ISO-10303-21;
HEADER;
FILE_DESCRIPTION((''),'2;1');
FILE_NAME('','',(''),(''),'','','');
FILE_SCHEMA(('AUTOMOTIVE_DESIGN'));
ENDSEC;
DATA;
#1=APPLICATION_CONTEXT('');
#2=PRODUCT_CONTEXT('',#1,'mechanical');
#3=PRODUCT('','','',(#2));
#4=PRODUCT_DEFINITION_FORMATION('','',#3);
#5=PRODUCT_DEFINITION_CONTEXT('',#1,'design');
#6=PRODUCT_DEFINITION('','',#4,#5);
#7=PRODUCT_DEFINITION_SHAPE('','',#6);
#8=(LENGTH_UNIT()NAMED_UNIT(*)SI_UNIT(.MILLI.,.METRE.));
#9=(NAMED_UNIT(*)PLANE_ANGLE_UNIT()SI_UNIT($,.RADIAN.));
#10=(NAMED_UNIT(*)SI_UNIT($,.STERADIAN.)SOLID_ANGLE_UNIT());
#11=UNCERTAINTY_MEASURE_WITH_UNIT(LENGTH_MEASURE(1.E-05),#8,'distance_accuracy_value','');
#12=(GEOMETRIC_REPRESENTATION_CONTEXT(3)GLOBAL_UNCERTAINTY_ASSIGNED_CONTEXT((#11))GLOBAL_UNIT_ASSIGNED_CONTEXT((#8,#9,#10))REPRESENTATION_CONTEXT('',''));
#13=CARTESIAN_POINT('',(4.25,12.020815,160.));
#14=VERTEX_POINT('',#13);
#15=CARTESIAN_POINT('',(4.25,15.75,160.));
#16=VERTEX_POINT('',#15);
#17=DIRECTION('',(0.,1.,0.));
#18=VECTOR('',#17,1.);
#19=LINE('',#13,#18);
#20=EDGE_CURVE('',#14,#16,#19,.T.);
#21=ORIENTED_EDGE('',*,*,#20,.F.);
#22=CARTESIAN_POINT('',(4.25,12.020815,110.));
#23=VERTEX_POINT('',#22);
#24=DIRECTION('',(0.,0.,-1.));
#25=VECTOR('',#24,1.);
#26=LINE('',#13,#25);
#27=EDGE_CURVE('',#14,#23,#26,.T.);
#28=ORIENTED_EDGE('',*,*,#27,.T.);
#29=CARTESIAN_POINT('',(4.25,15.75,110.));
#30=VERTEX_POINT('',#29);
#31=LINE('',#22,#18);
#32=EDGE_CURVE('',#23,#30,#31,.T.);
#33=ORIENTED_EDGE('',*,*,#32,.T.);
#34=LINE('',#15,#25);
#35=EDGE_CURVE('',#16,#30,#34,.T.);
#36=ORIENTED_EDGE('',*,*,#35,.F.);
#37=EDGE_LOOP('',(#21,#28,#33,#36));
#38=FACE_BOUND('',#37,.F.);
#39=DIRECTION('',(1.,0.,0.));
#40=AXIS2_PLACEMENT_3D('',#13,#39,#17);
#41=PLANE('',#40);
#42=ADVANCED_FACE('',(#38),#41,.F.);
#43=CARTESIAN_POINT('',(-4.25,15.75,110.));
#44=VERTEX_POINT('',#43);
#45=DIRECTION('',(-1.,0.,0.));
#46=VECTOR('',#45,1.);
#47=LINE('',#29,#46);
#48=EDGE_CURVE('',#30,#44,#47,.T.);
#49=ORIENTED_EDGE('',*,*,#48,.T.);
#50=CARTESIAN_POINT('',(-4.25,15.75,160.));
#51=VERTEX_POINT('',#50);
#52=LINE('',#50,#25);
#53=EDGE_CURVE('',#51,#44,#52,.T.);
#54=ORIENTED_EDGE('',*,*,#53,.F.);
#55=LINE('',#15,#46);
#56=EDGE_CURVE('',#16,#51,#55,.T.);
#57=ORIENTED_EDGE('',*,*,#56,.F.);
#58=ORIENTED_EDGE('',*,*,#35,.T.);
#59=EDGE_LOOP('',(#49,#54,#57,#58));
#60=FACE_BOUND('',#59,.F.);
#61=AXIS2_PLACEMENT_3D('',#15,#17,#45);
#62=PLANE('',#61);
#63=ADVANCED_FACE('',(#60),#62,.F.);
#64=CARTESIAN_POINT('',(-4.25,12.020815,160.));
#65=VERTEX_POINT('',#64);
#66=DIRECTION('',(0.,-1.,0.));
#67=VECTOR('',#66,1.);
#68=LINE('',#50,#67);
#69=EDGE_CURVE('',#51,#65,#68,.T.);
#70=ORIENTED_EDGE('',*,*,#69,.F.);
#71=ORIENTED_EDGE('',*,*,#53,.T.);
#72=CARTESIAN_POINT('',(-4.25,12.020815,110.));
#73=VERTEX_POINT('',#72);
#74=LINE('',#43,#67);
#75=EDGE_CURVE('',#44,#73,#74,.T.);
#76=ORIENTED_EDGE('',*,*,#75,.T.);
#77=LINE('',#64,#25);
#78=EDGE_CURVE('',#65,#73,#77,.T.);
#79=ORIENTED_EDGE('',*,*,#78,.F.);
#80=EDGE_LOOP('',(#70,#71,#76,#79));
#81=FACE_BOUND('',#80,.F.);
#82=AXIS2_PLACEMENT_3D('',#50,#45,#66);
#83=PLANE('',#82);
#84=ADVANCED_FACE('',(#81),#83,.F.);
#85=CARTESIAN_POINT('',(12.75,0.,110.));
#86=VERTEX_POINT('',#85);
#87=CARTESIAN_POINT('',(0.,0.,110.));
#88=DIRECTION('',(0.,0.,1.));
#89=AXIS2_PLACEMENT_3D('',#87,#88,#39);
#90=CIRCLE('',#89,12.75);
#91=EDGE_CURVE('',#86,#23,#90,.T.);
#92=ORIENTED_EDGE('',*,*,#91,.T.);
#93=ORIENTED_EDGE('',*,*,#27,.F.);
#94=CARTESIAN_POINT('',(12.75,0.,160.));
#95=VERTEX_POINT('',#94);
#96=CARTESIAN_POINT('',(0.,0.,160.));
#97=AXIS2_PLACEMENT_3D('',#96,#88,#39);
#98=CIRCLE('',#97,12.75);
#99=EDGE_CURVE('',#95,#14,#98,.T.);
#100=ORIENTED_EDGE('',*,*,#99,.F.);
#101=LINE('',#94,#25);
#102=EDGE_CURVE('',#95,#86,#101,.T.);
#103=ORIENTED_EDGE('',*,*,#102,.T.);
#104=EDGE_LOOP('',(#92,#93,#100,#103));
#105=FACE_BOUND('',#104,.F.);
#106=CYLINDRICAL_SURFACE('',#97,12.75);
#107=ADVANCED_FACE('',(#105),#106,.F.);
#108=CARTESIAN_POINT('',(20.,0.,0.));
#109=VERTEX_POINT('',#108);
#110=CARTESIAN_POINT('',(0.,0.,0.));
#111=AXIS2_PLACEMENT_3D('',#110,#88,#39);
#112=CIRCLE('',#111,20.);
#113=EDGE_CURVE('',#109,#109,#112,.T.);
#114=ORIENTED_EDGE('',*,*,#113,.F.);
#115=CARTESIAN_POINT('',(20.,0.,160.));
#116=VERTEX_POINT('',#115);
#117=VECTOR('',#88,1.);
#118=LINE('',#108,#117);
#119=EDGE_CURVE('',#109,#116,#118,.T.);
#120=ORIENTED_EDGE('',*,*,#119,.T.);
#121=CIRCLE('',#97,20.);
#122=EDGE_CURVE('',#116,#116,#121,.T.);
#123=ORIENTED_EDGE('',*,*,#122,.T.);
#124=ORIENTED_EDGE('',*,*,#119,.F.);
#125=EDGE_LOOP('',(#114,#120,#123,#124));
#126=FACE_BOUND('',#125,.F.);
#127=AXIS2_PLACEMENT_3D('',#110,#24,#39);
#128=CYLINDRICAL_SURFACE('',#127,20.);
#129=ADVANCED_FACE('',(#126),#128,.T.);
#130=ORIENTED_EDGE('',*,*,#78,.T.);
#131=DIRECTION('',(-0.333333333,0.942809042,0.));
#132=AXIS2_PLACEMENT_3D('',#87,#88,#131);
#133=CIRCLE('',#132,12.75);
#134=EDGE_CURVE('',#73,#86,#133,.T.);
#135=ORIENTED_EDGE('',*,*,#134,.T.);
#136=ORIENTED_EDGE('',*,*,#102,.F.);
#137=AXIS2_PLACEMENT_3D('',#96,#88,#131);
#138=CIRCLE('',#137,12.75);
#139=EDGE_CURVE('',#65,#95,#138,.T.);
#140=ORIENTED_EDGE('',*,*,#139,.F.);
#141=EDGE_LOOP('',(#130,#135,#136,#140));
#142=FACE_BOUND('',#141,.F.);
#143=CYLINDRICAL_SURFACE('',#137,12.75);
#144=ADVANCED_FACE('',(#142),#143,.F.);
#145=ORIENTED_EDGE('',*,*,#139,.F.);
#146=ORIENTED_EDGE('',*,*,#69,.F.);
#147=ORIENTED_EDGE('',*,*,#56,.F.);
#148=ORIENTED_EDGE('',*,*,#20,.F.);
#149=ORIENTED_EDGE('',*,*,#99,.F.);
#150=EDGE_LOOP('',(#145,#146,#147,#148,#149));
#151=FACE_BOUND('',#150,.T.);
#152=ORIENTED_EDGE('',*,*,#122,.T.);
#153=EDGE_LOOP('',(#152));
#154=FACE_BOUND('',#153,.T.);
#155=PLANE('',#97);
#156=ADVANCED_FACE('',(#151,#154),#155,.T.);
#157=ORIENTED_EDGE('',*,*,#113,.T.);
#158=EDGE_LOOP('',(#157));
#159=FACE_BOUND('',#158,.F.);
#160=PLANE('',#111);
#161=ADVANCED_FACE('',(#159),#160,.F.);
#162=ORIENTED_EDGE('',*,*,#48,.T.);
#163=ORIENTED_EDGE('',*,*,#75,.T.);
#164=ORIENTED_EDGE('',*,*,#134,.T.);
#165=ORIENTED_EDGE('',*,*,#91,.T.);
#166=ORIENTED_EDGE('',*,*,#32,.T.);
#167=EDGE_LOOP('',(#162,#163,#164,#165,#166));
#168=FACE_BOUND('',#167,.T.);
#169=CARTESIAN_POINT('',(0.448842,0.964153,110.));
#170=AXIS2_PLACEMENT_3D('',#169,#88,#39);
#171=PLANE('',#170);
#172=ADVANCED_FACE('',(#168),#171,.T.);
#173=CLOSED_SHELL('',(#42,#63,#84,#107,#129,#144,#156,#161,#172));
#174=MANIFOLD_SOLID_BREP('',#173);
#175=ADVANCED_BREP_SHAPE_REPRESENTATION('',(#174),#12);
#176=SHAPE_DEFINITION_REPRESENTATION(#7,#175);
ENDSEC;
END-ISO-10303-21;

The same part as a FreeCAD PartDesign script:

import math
import FreeCAD as App
import Part
import Sketcher

V = App.Vector
Q = App.Units.Quantity

doc = App.newDocument("Part")
body = doc.addObject("PartDesign::Body", "Body")

# Sketch on XY plane
sketch1 = doc.addObject("Sketcher::SketchObject", "Sketch")
body.addObject(sketch1)
sketch1.AttachmentSupport = (doc.XY_Plane, [""])
sketch1.MapMode = "FlatFace"
sketch1.addGeometry(Part.Circle(V(0, 0, 0), V(0, 0, 1), 20), False)
sketch1.addConstraint([
    Sketcher.Constraint("Coincident", 0, 3, -1, 1),
    Sketcher.Constraint("Diameter", 0, Q("40 mm")),
])
pad1 = doc.addObject("PartDesign::Pad", "Pad")
body.addObject(pad1)
pad1.Profile = sketch1
pad1.Length = 160

# Sketch on XY plane
sketch2 = doc.addObject("Sketcher::SketchObject", "Sketch001")
body.addObject(sketch2)
sketch2.AttachmentSupport = (doc.XY_Plane, [""])
sketch2.MapMode = "FlatFace"
sketch2.AttachmentOffset = App.Placement(V(0, 0, 160), App.Rotation())
sketch2.addGeometry([
    Part.ArcOfCircle(Part.Circle(V(0, 0, 0), V(0, 0, 1), 12.75), math.radians(109.471221), math.radians(360)),  # 0
    Part.ArcOfCircle(Part.Circle(V(0, 0, 0), V(0, 0, 1), 12.75), math.radians(0), math.radians(70.528779)),  # 1
    Part.LineSegment(V(4.25, 12.020815, 0), V(4.25, 15.75, 0)),  # 2
    Part.LineSegment(V(4.25, 15.75, 0), V(-4.25, 15.75, 0)),  # 3
    Part.LineSegment(V(-4.25, 15.75, 0), V(-4.25, 12.020815, 0)),  # 4
], False)
sketch2.addConstraint([
    Sketcher.Constraint("Tangent", 0, 2, 1, 1),
    Sketcher.Constraint("Coincident", 1, 2, 2, 1),
    Sketcher.Constraint("Coincident", 2, 2, 3, 1),
    Sketcher.Constraint("Coincident", 3, 2, 4, 1),
    Sketcher.Constraint("Coincident", 4, 2, 0, 1),
    Sketcher.Constraint("Vertical", 2),
    Sketcher.Constraint("Horizontal", 3),
    Sketcher.Constraint("Vertical", 4),
    Sketcher.Constraint("Coincident", 0, 3, -1, 1),
    Sketcher.Constraint("Equal", 0, 1),
    Sketcher.Constraint("PointOnObject", 0, 2, -1),
    Sketcher.Constraint("Horizontal", 1, 2, 4, 2),
    Sketcher.Constraint("Radius", 0, Q("12.75 mm")),
    Sketcher.Constraint("DistanceX", 3, 2, 3, 1, Q("8.5 mm")),
    Sketcher.Constraint("DistanceY", -1, 1, 2, 2, Q("15.75 mm")),
])
pocket1 = doc.addObject("PartDesign::Pocket", "Pocket")
body.addObject(pocket1)
pocket1.Profile = sketch2
pocket1.Length = 50

doc.recompute()
